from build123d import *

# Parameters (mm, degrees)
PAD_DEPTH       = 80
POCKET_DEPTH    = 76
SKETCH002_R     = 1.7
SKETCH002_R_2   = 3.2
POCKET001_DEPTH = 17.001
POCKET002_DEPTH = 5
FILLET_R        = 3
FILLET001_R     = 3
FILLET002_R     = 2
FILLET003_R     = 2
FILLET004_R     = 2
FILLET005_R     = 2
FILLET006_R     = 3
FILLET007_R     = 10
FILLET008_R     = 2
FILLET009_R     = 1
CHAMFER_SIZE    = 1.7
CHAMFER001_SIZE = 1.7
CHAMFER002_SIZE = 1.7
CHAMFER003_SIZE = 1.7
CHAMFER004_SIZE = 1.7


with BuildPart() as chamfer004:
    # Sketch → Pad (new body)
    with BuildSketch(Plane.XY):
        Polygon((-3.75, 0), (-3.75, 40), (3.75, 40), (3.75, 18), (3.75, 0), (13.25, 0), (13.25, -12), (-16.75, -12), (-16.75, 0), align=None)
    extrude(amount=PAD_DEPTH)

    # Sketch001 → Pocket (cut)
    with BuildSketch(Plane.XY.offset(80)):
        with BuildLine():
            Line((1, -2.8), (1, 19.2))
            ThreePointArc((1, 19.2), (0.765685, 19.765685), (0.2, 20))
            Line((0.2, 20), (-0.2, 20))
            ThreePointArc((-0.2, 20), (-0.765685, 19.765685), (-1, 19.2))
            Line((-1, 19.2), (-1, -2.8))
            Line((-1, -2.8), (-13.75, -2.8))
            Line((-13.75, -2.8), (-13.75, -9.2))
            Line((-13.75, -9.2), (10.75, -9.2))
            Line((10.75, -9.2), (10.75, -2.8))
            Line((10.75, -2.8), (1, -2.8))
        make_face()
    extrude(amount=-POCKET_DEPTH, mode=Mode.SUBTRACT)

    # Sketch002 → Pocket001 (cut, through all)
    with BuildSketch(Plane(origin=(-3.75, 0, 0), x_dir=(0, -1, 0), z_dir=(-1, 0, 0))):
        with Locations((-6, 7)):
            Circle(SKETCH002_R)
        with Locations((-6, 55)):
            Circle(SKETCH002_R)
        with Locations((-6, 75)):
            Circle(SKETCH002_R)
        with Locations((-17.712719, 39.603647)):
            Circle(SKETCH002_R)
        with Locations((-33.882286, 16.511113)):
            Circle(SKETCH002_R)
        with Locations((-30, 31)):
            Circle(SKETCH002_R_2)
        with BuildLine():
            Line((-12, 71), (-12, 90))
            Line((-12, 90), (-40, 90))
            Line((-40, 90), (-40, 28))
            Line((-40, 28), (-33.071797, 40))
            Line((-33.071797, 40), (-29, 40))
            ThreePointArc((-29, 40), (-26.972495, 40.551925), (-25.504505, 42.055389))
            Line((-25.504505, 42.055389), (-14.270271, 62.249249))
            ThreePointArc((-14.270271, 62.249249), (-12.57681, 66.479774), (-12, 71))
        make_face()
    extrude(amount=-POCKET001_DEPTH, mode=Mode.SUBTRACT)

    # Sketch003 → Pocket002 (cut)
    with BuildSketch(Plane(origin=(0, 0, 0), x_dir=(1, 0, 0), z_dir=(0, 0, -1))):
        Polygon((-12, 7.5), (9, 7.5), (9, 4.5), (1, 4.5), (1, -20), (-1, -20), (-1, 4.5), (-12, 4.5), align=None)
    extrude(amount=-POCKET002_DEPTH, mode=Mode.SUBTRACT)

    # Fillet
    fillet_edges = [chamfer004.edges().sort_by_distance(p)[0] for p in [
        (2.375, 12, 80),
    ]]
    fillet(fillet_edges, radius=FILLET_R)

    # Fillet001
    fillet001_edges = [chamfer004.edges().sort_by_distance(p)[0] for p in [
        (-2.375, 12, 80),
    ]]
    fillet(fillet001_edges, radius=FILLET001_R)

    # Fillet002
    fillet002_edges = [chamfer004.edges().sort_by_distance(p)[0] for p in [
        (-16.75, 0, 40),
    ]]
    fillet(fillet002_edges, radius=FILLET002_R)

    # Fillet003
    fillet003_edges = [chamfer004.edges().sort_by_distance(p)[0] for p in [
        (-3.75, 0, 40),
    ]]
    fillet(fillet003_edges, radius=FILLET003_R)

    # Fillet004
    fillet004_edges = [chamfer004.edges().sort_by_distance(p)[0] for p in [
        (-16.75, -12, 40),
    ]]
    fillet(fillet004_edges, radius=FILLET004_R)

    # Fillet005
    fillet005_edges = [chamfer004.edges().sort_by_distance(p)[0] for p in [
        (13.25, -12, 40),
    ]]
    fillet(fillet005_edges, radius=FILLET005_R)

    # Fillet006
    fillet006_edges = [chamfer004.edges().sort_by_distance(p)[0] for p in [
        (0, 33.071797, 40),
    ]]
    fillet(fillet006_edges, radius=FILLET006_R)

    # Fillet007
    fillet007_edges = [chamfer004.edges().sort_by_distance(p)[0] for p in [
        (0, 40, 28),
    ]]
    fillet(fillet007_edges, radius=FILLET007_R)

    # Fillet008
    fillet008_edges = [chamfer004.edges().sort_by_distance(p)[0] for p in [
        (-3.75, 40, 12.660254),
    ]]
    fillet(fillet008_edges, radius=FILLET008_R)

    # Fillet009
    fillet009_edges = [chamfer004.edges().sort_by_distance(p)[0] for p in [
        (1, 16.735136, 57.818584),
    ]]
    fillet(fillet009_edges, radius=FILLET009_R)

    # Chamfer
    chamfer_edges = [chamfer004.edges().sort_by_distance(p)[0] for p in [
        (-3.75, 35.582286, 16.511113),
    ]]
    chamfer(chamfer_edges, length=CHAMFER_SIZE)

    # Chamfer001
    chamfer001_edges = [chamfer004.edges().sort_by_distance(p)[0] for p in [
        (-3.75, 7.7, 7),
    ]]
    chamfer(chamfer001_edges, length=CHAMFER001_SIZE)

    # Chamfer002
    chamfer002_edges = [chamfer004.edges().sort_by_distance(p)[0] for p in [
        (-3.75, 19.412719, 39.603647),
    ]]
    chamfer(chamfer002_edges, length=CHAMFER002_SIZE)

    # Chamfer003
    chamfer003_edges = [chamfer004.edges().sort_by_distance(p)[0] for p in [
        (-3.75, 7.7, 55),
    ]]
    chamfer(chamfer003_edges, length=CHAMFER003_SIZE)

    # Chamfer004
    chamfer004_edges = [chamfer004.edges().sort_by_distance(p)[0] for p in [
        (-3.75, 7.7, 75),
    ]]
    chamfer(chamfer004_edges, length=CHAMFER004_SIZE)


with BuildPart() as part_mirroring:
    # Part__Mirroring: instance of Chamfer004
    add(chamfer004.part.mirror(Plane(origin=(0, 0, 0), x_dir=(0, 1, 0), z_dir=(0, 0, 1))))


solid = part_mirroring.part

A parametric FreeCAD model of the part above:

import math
import FreeCAD as App
import Part
import Sketcher
from FreeCAD import Vector
Q = App.Units.Quantity


def edges_at(feature, points):
    """Names of the edges that pass closest to the given points."""
    edges = feature.Shape.Edges
    near = lambda p: min(range(len(edges)), key=lambda i: edges[i].distToShape(Part.Vertex(*p))[0])
    return sorted({f"Edge{near(p) + 1}" for p in points})


def add_polygon(sketch, points):
    """Adds a closed chain of lines whose ends are joined by coincident constraints."""
    first, n = sketch.GeometryCount, len(points)
    for a, b in zip(points, points[1:] + points[:1]):
        sketch.addGeometry(Part.LineSegment(App.Vector(*a, 0), App.Vector(*b, 0)), False)
    for i in range(n):
        sketch.addConstraint(Sketcher.Constraint("Coincident", first + i, 2, first + (i + 1) % n, 1))

doc = App.newDocument("Part")
body = doc.addObject("PartDesign::Body", "Body")

sketch1 = body.newObject("Sketcher::SketchObject", "Sketch")
sketch1.AttachmentSupport = (doc.getObject("XY_Plane"), [""])
sketch1.MapMode = "FlatFace"
add_polygon(sketch1, [(-4, 40), (-4, 0), (-17, 0), (-17, -12), (13, -12), (13, 0), (4, 0), (4, 40)])
sketch1.addConstraint(Sketcher.Constraint("Vertical", 0))
sketch1.addConstraint(Sketcher.Constraint("Horizontal", 1))
sketch1.addConstraint(Sketcher.Constraint("Vertical", 2))
sketch1.addConstraint(Sketcher.Constraint("Horizontal", 3))
sketch1.addConstraint(Sketcher.Constraint("Vertical", 4))
sketch1.addConstraint(Sketcher.Constraint("Horizontal", 5))
sketch1.addConstraint(Sketcher.Constraint("Vertical", 6))
sketch1.addConstraint(Sketcher.Constraint("Horizontal", 7))
sketch1.addConstraint(Sketcher.Constraint("Symmetric", 0, 2, 5, 2, -1, 1))
sketch1.addConstraint(Sketcher.Constraint("PointOnObject", 0, 2, -1))
sketch1.addConstraint(Sketcher.Constraint("DistanceX", 1, 2, 1, 1, 13.0))
sketch1.addConstraint(Sketcher.Constraint("DistanceX", 3, 1, 3, 2, 30.0))
sketch1.addConstraint(Sketcher.Constraint("DistanceY", 0, 2, 0, 1, 40.0))
sketch1.addConstraint(Sketcher.Constraint("DistanceY", 2, 2, 2, 1, 12.0))
sketch1.addConstraint(Sketcher.Constraint("DistanceX", 5, 2, 5, 1, 9.5))
pad1 = body.newObject("PartDesign::Pad", "Pad")
pad1.Profile = sketch1
pad1.Length = 80

sketch2 = body.newObject("Sketcher::SketchObject", "Sketch001")
sketch2.AttachmentSupport = (doc.getObject("XY_Plane"), [""])
sketch2.MapMode = "FlatFace"
sketch2.AttachmentOffset = App.Placement(Vector(0, 0, 80), App.Rotation())
sketch2.addGeometry(Part.LineSegment(Vector(1, -2.8, 0), Vector(1, 19.2, 0)), False)
sketch2.addGeometry(Part.ArcOfCircle(Part.Circle(Vector(0.2, 19.2, 0), Vector(0, 0, 1), 0.8), math.radians(0), math.radians(90)), False)
sketch2.addGeometry(Part.LineSegment(Vector(0.2, 20, 0), Vector(-0.2, 20, 0)), False)
sketch2.addGeometry(Part.ArcOfCircle(Part.Circle(Vector(-0.2, 19.2, 0), Vector(0, 0, 1), 0.8), math.radians(90), math.radians(180)), False)
sketch2.addGeometry(Part.LineSegment(Vector(-1, 19.2, 0), Vector(-1, -2.8, 0)), False)
sketch2.addGeometry(Part.LineSegment(Vector(-1, -2.8, 0), Vector(-13.75, -2.8, 0)), False)
sketch2.addGeometry(Part.LineSegment(Vector(-13.75, -2.8, 0), Vector(-13.75, -9.2, 0)), False)
sketch2.addGeometry(Part.LineSegment(Vector(-13.75, -9.2, 0), Vector(10.75, -9.2, 0)), False)
sketch2.addGeometry(Part.LineSegment(Vector(10.75, -9.2, 0), Vector(10.75, -2.8, 0)), False)
sketch2.addGeometry(Part.LineSegment(Vector(10.75, -2.8, 0), Vector(1, -2.8, 0)), False)
sketch2.addConstraint(Sketcher.Constraint("Tangent", 0, 2, 1, 1))
sketch2.addConstraint(Sketcher.Constraint("Tangent", 1, 2, 2, 1))
sketch2.addConstraint(Sketcher.Constraint("Tangent", 2, 2, 3, 1))
sketch2.addConstraint(Sketcher.Constraint("Tangent", 3, 2, 4, 1))
sketch2.addConstraint(Sketcher.Constraint("Coincident", 4, 2, 5, 1))
sketch2.addConstraint(Sketcher.Constraint("Coincident", 5, 2, 6, 1))
sketch2.addConstraint(Sketcher.Constraint("Coincident", 6, 2, 7, 1))
sketch2.addConstraint(Sketcher.Constraint("Coincident", 7, 2, 8, 1))
sketch2.addConstraint(Sketcher.Constraint("Coincident", 8, 2, 9, 1))
sketch2.addConstraint(Sketcher.Constraint("Coincident", 9, 2, 0, 1))
sketch2.addConstraint(Sketcher.Constraint("Vertical", 0))
sketch2.addConstraint(Sketcher.Constraint("Horizontal", 2))
sketch2.addConstraint(Sketcher.Constraint("Vertical", 4))
sketch2.addConstraint(Sketcher.Constraint("Horizontal", 5))
sketch2.addConstraint(Sketcher.Constraint("Vertical", 6))
sketch2.addConstraint(Sketcher.Constraint("Horizontal", 7))
sketch2.addConstraint(Sketcher.Constraint("Vertical", 8))
sketch2.addConstraint(Sketcher.Constraint("Horizontal", 9))
sketch2.addConstraint(Sketcher.Constraint("Equal", 1, 3))
sketch2.addConstraint(Sketcher.Constraint("Symmetric", 4, 2, 9, 2, -2))
sketch2.addConstraint(Sketcher.Constraint("Radius", 1, 0.800001))
sketch2.addConstraint(Sketcher.Constraint("DistanceY", 0, 1, 0, 2, 22.0))
sketch2.addConstraint(Sketcher.Constraint("DistanceX", 2, 2, 2, 1, 0.4))
sketch2.addConstraint(Sketcher.Constraint("DistanceX", 7, 1, 7, 2, 24.5))
sketch2.addConstraint(Sketcher.Constraint("DistanceY", 6, 2, 6, 1, 6.4))
sketch2.addConstraint(Sketcher.Constraint("DistanceY", -1, 1, 1, 2, 20.0))
sketch2.addConstraint(Sketcher.Constraint("DistanceX", 5, 2, 5, 1, 12.75))
pocket1 = body.newObject("PartDesign::Pocket", "Pocket")
pocket1.Profile = sketch2
pocket1.Length = 76

sketch3 = body.newObject("Sketcher::SketchObject", "Sketch002")
sketch3.AttachmentSupport = (doc.getObject("YZ_Plane"), [""])
sketch3.MapMode = "FlatFace"
sketch3.AttachmentOffset = App.Placement(Vector(0, 0, -3.75), App.Rotation())
sketch3.addGeometry(Part.Circle(Vector(6, 7, 0), Vector(0, 0, 1), 1.7), False)
sketch3.addGeometry(Part.Circle(Vector(6, 55, 0), Vector(0, 0, 1), 1.7), False)
sketch3.addGeometry(Part.Circle(Vector(6, 75, 0), Vector(0, 0, 1), 1.7), False)
sketch3.addGeometry(Part.Circle(Vector(17.7, 39.6, 0), Vector(0, 0, 1), 1.7), False)
sketch3.addGeometry(Part.Circle(Vector(33.9, 16.5, 0), Vector(0, 0, 1), 1.7), False)
sketch3.addGeometry(Part.Circle(Vector(30, 31, 0), Vector(0, 0, 1), 3.2), False)
sketch3.addGeometry(Part.LineSegment(Vector(12, 71, 0), Vector(12, 90, 0)), False)
sketch3.addGeometry(Part.LineSegment(Vector(12, 90, 0), Vector(40, 90, 0)), False)
sketch3.addGeometry(Part.LineSegment(Vector(40, 90, 0), Vector(40, 28, 0)), False)
sketch3.addGeometry(Part.LineSegment(Vector(40, 28, 0), Vector(33.1, 40, 0)), False)
sketch3.addGeometry(Part.LineSegment(Vector(33.1, 40, 0), Vector(29, 40, 0)), False)
sketch3.addGeometry(Part.ArcOfCircle(Part.Circle(Vector(29, 44, 0), Vector(0, 0, 1), 4), math.radians(-151), math.radians(-90)), False)
sketch3.addGeometry(Part.LineSegment(Vector(25.5, 42.1, 0), Vector(14.3, 62.2, 0)), False)
sketch3.addGeometry(Part.ArcOfCircle(Part.Circle(Vector(30, 71, 0), Vector(0, 0, 1), 18), math.radians(-180), math.radians(-151)), False)
sketch3.addConstraint(Sketcher.Constraint("Coincident", 6, 2, 7, 1))
sketch3.addConstraint(Sketcher.Constraint("Coincident", 7, 2, 8, 1))
sketch3.addConstraint(Sketcher.Constraint("Coincident", 8, 2, 9, 1))
sketch3.addConstraint(Sketcher.Constraint("Coincident", 9, 2, 10, 1))
sketch3.addConstraint(Sketcher.Constraint("Tangent", 10, 2, 11, 2))
sketch3.addConstraint(Sketcher.Constraint("Tangent", 11, 1, 12, 1))
sketch3.addConstraint(Sketcher.Constraint("Tangent", 12, 2, 13, 2))
sketch3.addConstraint(Sketcher.Constraint("Tangent", 13, 1, 6, 1))
sketch3.addConstraint(Sketcher.Constraint("Vertical", 6))
sketch3.addConstraint(Sketcher.Constraint("Horizontal", 7))
sketch3.addConstraint(Sketcher.Constraint("Vertical", 8))
sketch3.addConstraint(Sketcher.Constraint("Horizontal", 10))
sketch3.addConstraint(Sketcher.Constraint("Equal", 0, 1))
sketch3.addConstraint(Sketcher.Constraint("Equal", 1, 2))
sketch3.addConstraint(Sketcher.Constraint("Equal", 2, 3))
sketch3.addConstraint(Sketcher.Constraint("Equal", 3, 4))
sketch3.addConstraint(Sketcher.Constraint("Vertical", 0, 3, 1, 3))
sketch3.addConstraint(Sketcher.Constraint("Vertical", 1, 3, 2, 3))
sketch3.addConstraint(Sketcher.Constraint("Radius", 11, 4.000001))
sketch3.addConstraint(Sketcher.Constraint("Diameter", 0, 3.4))
sketch3.addConstraint(Sketcher.Constraint("Diameter", 5, 6.4))
sketch3.addConstraint(Sketcher.Constraint("DistanceX", 7, 1, 7, 2, 28.0))
sketch3.addConstraint(Sketcher.Constraint("DistanceY", 6, 1, 6, 2, 19.0))
sketch3.addConstraint(Sketcher.Constraint("DistanceY", 8, 2, 8, 1, 62.0))
sketch3.addConstraint(Sketcher.Constraint("Angle", 9, Q("119.999999 deg")))
sketch3.addConstraint(Sketcher.Constraint("DistanceX", -1, 1, 0, 3, 6.0))
sketch3.addConstraint(Sketcher.Constraint("DistanceY", -1, 1, 0, 3, 7.0))
sketch3.addConstraint(Sketcher.Constraint("DistanceY", -1, 1, 1, 3, 55.0))
sketch3.addConstraint(Sketcher.Constraint("DistanceY", -1, 1, 2, 3, 75.0))
sketch3.addConstraint(Sketcher.Constraint("DistanceX", -1, 1, 5, 3, 30.0))
sketch3.addConstraint(Sketcher.Constraint("DistanceY", -1, 1, 5, 3, 31.0))
sketch3.addConstraint(Sketcher.Constraint("DistanceX", -1, 1, 11, 3, 29.000001))
sketch3.addConstraint(Sketcher.Constraint("DistanceY", -1, 1, 11, 3, 44.000001))
sketch3.addConstraint(Sketcher.Constraint("DistanceX", -1, 1, 6, 2, 12.0))
sketch3.addConstraint(Sketcher.Constraint("DistanceY", -1, 1, 6, 2, 90.0))
sketch3.addConstraint(Sketcher.Constraint("Radius", 13, 18.000014))
sketch3.addConstraint(Sketcher.Constraint("DistanceY", 3, 3, 12, 2, 22.645602))
sketch3.addConstraint(Sketcher.Constraint("DistanceX", -1, 1, 3, 3, 17.712719))
sketch3.addConstraint(Sketcher.Constraint("DistanceX", 9, 2, 4, 3, 0.810489))
sketch3.addConstraint(Sketcher.Constraint("DistanceY", -1, 1, 4, 3, 16.511113))
pocket2 = body.newObject("PartDesign::Pocket", "Pocket001")
pocket2.Profile = sketch3
pocket2.Type = "ThroughAll"
pocket2.Reversed = True

sketch4 = body.newObject("Sketcher::SketchObject", "Sketch003")
sketch4.AttachmentSupport = (doc.getObject("XY_Plane"), [""])
sketch4.MapMode = "FlatFace"
add_polygon(sketch4, [(9, -7.5), (-12, -7.5), (-12, -4.5), (-1, -4.5), (-1, 20), (1, 20), (1, -4.5), (9, -4.5)])
sketch4.addConstraint(Sketcher.Constraint("Horizontal", 0))
sketch4.addConstraint(Sketcher.Constraint("Vertical", 1))
sketch4.addConstraint(Sketcher.Constraint("Horizontal", 2))
sketch4.addConstraint(Sketcher.Constraint("Vertical", 3))
sketch4.addConstraint(Sketcher.Constraint("Horizontal", 4))
sketch4.addConstraint(Sketcher.Constraint("Vertical", 5))
sketch4.addConstraint(Sketcher.Constraint("Horizontal", 6))
sketch4.addConstraint(Sketcher.Constraint("Vertical", 7))
sketch4.addConstraint(Sketcher.Constraint("Symmetric", 2, 2, 5, 2, -2))
sketch4.addConstraint(Sketcher.Constraint("DistanceX", 0, 2, 0, 1, 21.0))
sketch4.addConstraint(Sketcher.Constraint("DistanceX", 2, 1, 2, 2, 11.0))
sketch4.addConstraint(Sketcher.Constraint("DistanceX", 4, 1, 4, 2, 2.0))
sketch4.addConstraint(Sketcher.Constraint("DistanceY", 1, 1, 1, 2, 3.0))
sketch4.addConstraint(Sketcher.Constraint("DistanceY", 3, 1, 3, 2, 24.5))
sketch4.addConstraint(Sketcher.Constraint("DistanceY", -1, 1, 3, 2, 20.0))
pocket3 = body.newObject("PartDesign::Pocket", "Pocket002")
pocket3.Profile = sketch4
pocket3.Length = 5
pocket3.Reversed = True
doc.recompute()

fillet = body.newObject("PartDesign::Fillet", "Fillet")
fillet.Base = (pocket3, edges_at(pocket3, [(2.375, 12, 80)]))
fillet.Radius = 3
doc.recompute()

fillet2 = body.newObject("PartDesign::Fillet", "Fillet001")
fillet2.Base = (fillet, edges_at(fillet, [(-2.375, 12, 80)]))
fillet2.Radius = 3
doc.recompute()

fillet3 = body.newObject("PartDesign::Fillet", "Fillet002")
fillet3.Base = (fillet2, edges_at(fillet2, [(-16.75, 0, 40)]))
fillet3.Radius = 2
doc.recompute()

fillet4 = body.newObject("PartDesign::Fillet", "Fillet003")
fillet4.Base = (fillet3, edges_at(fillet3, [(-3.75, 0, 40)]))
fillet4.Radius = 2
doc.recompute()

fillet5 = body.newObject("PartDesign::Fillet", "Fillet004")
fillet5.Base = (fillet4, edges_at(fillet4, [(-16.75, -12, 40)]))
fillet5.Radius = 2
doc.recompute()

fillet6 = body.newObject("PartDesign::Fillet", "Fillet005")
fillet6.Base = (fillet5, edges_at(fillet5, [(13.25, -12, 40)]))
fillet6.Radius = 2
doc.recompute()

fillet7 = body.newObject("PartDesign::Fillet", "Fillet006")
fillet7.Base = (fillet6, edges_at(fillet6, [(0, 33.072, 40)]))
fillet7.Radius = 3
doc.recompute()

fillet8 = body.newObject("PartDesign::Fillet", "Fillet007")
fillet8.Base = (fillet7, edges_at(fillet7, [(0, 40, 28)]))
fillet8.Radius = 10
doc.recompute()

fillet9 = body.newObject("PartDesign::Fillet", "Fillet008")
fillet9.Base = (fillet8, edges_at(fillet8, [(-3.75, 40, 12.66)]))
fillet9.Radius = 2
doc.recompute()

fillet10 = body.newObject("PartDesign::Fillet", "Fillet009")
fillet10.Base = (fillet9, edges_at(fillet9, [(1, 16.735, 57.819)]))
fillet10.Radius = 1
doc.recompute()

chamfer = body.newObject("PartDesign::Chamfer", "Chamfer")
chamfer.Base = (fillet10, edges_at(fillet10, [(-3.75, 35.582, 16.511)]))
chamfer.Size = 1.7
doc.recompute()

chamfer2 = body.newObject("PartDesign::Chamfer", "Chamfer001")
chamfer2.Base = (chamfer, edges_at(chamfer, [(-3.75, 7.7, 7)]))
chamfer2.Size = 1.7
doc.recompute()

chamfer3 = body.newObject("PartDesign::Chamfer", "Chamfer002")
chamfer3.Base = (chamfer2, edges_at(chamfer2, [(-3.75, 19.413, 39.604)]))
chamfer3.Size = 1.7
doc.recompute()

chamfer4 = body.newObject("PartDesign::Chamfer", "Chamfer003")
chamfer4.Base = (chamfer3, edges_at(chamfer3, [(-3.75, 7.7, 55)]))
chamfer4.Size = 1.7
doc.recompute()

chamfer5 = body.newObject("PartDesign::Chamfer", "Chamfer004")
chamfer5.Base = (chamfer4, edges_at(chamfer4, [(-3.75, 7.7, 75)]))
chamfer5.Size = 1.7
body2 = doc.addObject("PartDesign::Body", "Body001")
doc.recompute()

mirroring = doc.addObject("Part::Mirroring", "Mirroring")
mirroring.Source = body
mirroring.Base = Vector(0, 0, 0)
mirroring.Normal = Vector(0, 0, 1)
body2.BaseFeature = mirroring
doc.recompute()
body.Visibility = False
mirroring.Visibility = False

doc.recompute()
